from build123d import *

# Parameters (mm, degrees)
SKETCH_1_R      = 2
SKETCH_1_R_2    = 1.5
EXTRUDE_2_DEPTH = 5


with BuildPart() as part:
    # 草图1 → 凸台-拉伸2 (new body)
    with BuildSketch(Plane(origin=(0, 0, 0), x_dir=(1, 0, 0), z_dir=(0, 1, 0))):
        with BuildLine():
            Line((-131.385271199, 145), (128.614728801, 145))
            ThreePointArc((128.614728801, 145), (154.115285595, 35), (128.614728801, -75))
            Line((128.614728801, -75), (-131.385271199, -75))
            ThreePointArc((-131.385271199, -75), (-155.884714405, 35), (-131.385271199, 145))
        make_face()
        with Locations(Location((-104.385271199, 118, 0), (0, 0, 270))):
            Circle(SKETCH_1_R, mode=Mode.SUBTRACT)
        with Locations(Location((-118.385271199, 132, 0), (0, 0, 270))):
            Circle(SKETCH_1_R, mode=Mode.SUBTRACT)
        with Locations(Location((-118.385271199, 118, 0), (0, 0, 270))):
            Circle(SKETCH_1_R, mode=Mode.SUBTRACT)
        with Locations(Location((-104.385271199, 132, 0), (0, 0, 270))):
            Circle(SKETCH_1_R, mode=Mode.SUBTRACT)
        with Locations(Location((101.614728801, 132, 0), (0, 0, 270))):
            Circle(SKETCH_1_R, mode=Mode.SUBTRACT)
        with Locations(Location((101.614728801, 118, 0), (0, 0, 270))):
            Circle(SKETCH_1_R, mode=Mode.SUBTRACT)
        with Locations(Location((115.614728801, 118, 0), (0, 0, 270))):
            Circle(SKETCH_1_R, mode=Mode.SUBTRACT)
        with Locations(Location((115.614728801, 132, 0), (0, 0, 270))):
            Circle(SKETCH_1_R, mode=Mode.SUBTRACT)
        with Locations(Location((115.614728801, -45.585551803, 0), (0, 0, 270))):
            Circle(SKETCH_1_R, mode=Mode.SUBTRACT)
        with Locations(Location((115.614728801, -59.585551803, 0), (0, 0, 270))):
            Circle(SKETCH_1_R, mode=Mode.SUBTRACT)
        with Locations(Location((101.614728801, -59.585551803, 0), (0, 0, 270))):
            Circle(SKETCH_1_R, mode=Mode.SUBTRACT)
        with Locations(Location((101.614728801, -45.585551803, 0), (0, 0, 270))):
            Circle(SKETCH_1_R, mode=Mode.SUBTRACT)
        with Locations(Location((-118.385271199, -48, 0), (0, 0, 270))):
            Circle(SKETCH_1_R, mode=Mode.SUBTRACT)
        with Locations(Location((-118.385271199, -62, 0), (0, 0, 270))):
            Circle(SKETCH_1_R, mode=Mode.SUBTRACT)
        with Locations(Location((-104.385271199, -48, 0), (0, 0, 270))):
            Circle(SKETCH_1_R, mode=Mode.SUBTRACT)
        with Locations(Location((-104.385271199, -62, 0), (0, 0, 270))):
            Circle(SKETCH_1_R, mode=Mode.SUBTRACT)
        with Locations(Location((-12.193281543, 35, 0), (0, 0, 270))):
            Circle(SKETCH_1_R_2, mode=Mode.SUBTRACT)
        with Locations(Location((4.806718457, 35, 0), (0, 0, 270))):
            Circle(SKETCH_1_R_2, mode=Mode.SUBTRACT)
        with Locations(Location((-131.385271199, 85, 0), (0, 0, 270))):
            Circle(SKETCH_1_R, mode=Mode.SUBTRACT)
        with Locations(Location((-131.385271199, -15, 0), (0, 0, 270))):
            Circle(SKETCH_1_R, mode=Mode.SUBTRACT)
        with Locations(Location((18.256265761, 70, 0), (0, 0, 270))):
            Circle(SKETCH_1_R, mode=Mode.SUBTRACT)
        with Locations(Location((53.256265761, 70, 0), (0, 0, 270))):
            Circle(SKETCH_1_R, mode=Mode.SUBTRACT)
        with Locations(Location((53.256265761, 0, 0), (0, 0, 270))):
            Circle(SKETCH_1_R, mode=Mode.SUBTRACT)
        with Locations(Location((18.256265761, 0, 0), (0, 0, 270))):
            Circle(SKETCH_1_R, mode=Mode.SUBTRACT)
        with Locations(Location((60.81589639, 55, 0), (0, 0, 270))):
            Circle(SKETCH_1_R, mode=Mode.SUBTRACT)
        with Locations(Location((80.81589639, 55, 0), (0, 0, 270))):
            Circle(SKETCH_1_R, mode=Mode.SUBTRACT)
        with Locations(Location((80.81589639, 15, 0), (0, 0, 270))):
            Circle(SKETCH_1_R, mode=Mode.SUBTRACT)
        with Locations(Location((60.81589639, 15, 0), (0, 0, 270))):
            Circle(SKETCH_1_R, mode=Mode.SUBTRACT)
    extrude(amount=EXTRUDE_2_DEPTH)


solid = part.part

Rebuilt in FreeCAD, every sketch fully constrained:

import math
import FreeCAD as App
import Part
import Sketcher
from FreeCAD import Vector
Q = App.Units.Quantity

doc = App.newDocument("Part")
body = doc.addObject("PartDesign::Body", "Body")

# Sketch on XZ plane
sketch1 = doc.addObject("Sketcher::SketchObject", "Sketch")
body.addObject(sketch1)
sketch1.AttachmentSupport = (doc.XZ_Plane, [""])
sketch1.MapMode = "FlatFace"
sketch1.addGeometry(Part.LineSegment(Vector(128.6, -145, 0), Vector(-131.4, -145, 0)), False)
sketch1.addGeometry(Part.ArcOfCircle(Part.Circle(Vector(103.3, -35, 0), Vector(0, 0, 1), 259.2), math.radians(155), math.radians(205)), False)
sketch1.addGeometry(Part.LineSegment(Vector(-131.4, 75, 0), Vector(128.6, 75, 0)), False)
sketch1.addGeometry(Part.ArcOfCircle(Part.Circle(Vector(-95.9, -35, 0), Vector(0, 0, 1), 250), math.radians(-26), math.radians(26)), False)
sketch1.addGeometry(Part.Circle(Vector(115.6, 59.6, 0), Vector(0, 0, 1), 2), False)
sketch1.addGeometry(Part.Circle(Vector(101.6, 59.6, 0), Vector(0, 0, 1), 2), False)
sketch1.addGeometry(Part.Circle(Vector(115.6, 45.6, 0), Vector(0, 0, 1), 2), False)
sketch1.addGeometry(Part.Circle(Vector(101.6, 45.6, 0), Vector(0, 0, 1), 2), False)
sketch1.addGeometry(Part.Circle(Vector(80.8, -15, 0), Vector(0, 0, 1), 2), False)
sketch1.addGeometry(Part.Circle(Vector(60.8, -15, 0), Vector(0, 0, 1), 2), False)
sketch1.addGeometry(Part.Circle(Vector(53.3, 0, 0), Vector(0, 0, 1), 2), False)
sketch1.addGeometry(Part.Circle(Vector(18.3, 0, 0), Vector(0, 0, 1), 2), False)
sketch1.addGeometry(Part.Circle(Vector(-104.4, 62, 0), Vector(0, 0, 1), 2), False)
sketch1.addGeometry(Part.Circle(Vector(-118.4, 62, 0), Vector(0, 0, 1), 2), False)
sketch1.addGeometry(Part.Circle(Vector(-104.4, 48, 0), Vector(0, 0, 1), 2), False)
sketch1.addGeometry(Part.Circle(Vector(-118.4, 48, 0), Vector(0, 0, 1), 2), False)
sketch1.addGeometry(Part.Circle(Vector(-131.4, 15, 0), Vector(0, 0, 1), 2), False)
sketch1.addGeometry(Part.Circle(Vector(80.8, -55, 0), Vector(0, 0, 1), 2), False)
sketch1.addGeometry(Part.Circle(Vector(60.8, -55, 0), Vector(0, 0, 1), 2), False)
sketch1.addGeometry(Part.Circle(Vector(4.8, -35, 0), Vector(0, 0, 1), 1.5), False)
sketch1.addGeometry(Part.Circle(Vector(53.3, -70, 0), Vector(0, 0, 1), 2), False)
sketch1.addGeometry(Part.Circle(Vector(18.3, -70, 0), Vector(0, 0, 1), 2), False)
sketch1.addGeometry(Part.Circle(Vector(115.6, -118, 0), Vector(0, 0, 1), 2), False)
sketch1.addGeometry(Part.Circle(Vector(101.6, -118, 0), Vector(0, 0, 1), 2), False)
sketch1.addGeometry(Part.Circle(Vector(115.6, -132, 0), Vector(0, 0, 1), 2), False)
sketch1.addGeometry(Part.Circle(Vector(101.6, -132, 0), Vector(0, 0, 1), 2), False)
sketch1.addGeometry(Part.Circle(Vector(-12.2, -35, 0), Vector(0, 0, 1), 1.5), False)
sketch1.addGeometry(Part.Circle(Vector(-131.4, -85, 0), Vector(0, 0, 1), 2), False)
sketch1.addGeometry(Part.Circle(Vector(-104.4, -118, 0), Vector(0, 0, 1), 2), False)
sketch1.addGeometry(Part.Circle(Vector(-118.4, -118, 0), Vector(0, 0, 1), 2), False)
sketch1.addGeometry(Part.Circle(Vector(-104.4, -132, 0), Vector(0, 0, 1), 2), False)
sketch1.addGeometry(Part.Circle(Vector(-118.4, -132, 0), Vector(0, 0, 1), 2), False)
sketch1.addConstraint(Sketcher.Constraint("Coincident", 0, 2, 1, 2))
sketch1.addConstraint(Sketcher.Constraint("Coincident", 1, 1, 2, 1))
sketch1.addConstraint(Sketcher.Constraint("Coincident", 2, 2, 3, 2))
sketch1.addConstraint(Sketcher.Constraint("Coincident", 3, 1, 0, 1))
sketch1.addConstraint(Sketcher.Constraint("Horizontal", 0))
sketch1.addConstraint(Sketcher.Constraint("Horizontal", 2))
sketch1.addConstraint(Sketcher.Constraint("Equal", 4, 5))
sketch1.addConstraint(Sketcher.Constraint("Equal", 5, 6))
sketch1.addConstraint(Sketcher.Constraint("Equal", 6, 7))
sketch1.addConstraint(Sketcher.Constraint("Equal", 7, 8))
sketch1.addConstraint(Sketcher.Constraint("Equal", 8, 9))
sketch1.addConstraint(Sketcher.Constraint("Equal", 9, 10))
sketch1.addConstraint(Sketcher.Constraint("Equal", 10, 11))
sketch1.addConstraint(Sketcher.Constraint("Equal", 11, 12))
sketch1.addConstraint(Sketcher.Constraint("Equal", 12, 13))
sketch1.addConstraint(Sketcher.Constraint("Equal", 13, 14))
sketch1.addConstraint(Sketcher.Constraint("Equal", 14, 15))
sketch1.addConstraint(Sketcher.Constraint("Equal", 15, 16))
sketch1.addConstraint(Sketcher.Constraint("Equal", 16, 17))
sketch1.addConstraint(Sketcher.Constraint("Equal", 17, 18))
sketch1.addConstraint(Sketcher.Constraint("Equal", 18, 20))
sketch1.addConstraint(Sketcher.Constraint("Equal", 20, 21))
sketch1.addConstraint(Sketcher.Constraint("Equal", 21, 22))
sketch1.addConstraint(Sketcher.Constraint("Equal", 22, 23))
sketch1.addConstraint(Sketcher.Constraint("Equal", 23, 24))
sketch1.addConstraint(Sketcher.Constraint("Equal", 24, 25))
sketch1.addConstraint(Sketcher.Constraint("Equal", 19, 26))
sketch1.addConstraint(Sketcher.Constraint("Equal", 25, 27))
sketch1.addConstraint(Sketcher.Constraint("Equal", 27, 28))
sketch1.addConstraint(Sketcher.Constraint("Equal", 28, 29))
sketch1.addConstraint(Sketcher.Constraint("Equal", 29, 30))
sketch1.addConstraint(Sketcher.Constraint("Equal", 30, 31))
sketch1.addConstraint(Sketcher.Constraint("PointOnObject", 10, 3, -1))
sketch1.addConstraint(Sketcher.Constraint("PointOnObject", 11, 3, -1))
sketch1.addConstraint(Sketcher.Constraint("Horizontal", 1, 3, 3, 3))
sketch1.addConstraint(Sketcher.Constraint("Horizontal", 4, 3, 5, 3))
sketch1.addConstraint(Sketcher.Constraint("Horizontal", 6, 3, 7, 3))
sketch1.addConstraint(Sketcher.Constraint("Horizontal", 8, 3, 9, 3))
sketch1.addConstraint(Sketcher.Constraint("Horizontal", 12, 3, 13, 3))
sketch1.addConstraint(Sketcher.Constraint("Horizontal", 14, 3, 15, 3))
sketch1.addConstraint(Sketcher.Constraint("Horizontal", 17, 3, 18, 3))
sketch1.addConstraint(Sketcher.Constraint("Horizontal", 3, 3, 19, 3))
sketch1.addConstraint(Sketcher.Constraint("Horizontal", 20, 3, 21, 3))
sketch1.addConstraint(Sketcher.Constraint("Horizontal", 22, 3, 23, 3))
sketch1.addConstraint(Sketcher.Constraint("Horizontal", 24, 3, 25, 3))
sketch1.addConstraint(Sketcher.Constraint("Horizontal", 19, 3, 26, 3))
sketch1.addConstraint(Sketcher.Constraint("Horizontal", 23, 3, 28, 3))
sketch1.addConstraint(Sketcher.Constraint("Horizontal", 28, 3, 29, 3))
sketch1.addConstraint(Sketcher.Constraint("Horizontal", 25, 3, 30, 3))
sketch1.addConstraint(Sketcher.Constraint("Horizontal", 30, 3, 31, 3))
sketch1.addConstraint(Sketcher.Constraint("Vertical", 4, 3, 6, 3))
sketch1.addConstraint(Sketcher.Constraint("Vertical", 5, 3, 7, 3))
sketch1.addConstraint(Sketcher.Constraint("Vertical", 12, 3, 14, 3))
sketch1.addConstraint(Sketcher.Constraint("Vertical", 13, 3, 15, 3))
sketch1.addConstraint(Sketcher.Constraint("Vertical", 8, 3, 17, 3))
sketch1.addConstraint(Sketcher.Constraint("Vertical", 9, 3, 18, 3))
sketch1.addConstraint(Sketcher.Constraint("Vertical", 10, 3, 20, 3))
sketch1.addConstraint(Sketcher.Constraint("Vertical", 11, 3, 21, 3))
sketch1.addConstraint(Sketcher.Constraint("Vertical", 6, 3, 22, 3))
sketch1.addConstraint(Sketcher.Constraint("Vertical", 7, 3, 23, 3))
sketch1.addConstraint(Sketcher.Constraint("Vertical", 22, 3, 24, 3))
sketch1.addConstraint(Sketcher.Constraint("Vertical", 23, 3, 25, 3))
sketch1.addConstraint(Sketcher.Constraint("Vertical", 16, 3, 27, 3))
sketch1.addConstraint(Sketcher.Constraint("Vertical", 14, 3, 28, 3))
sketch1.addConstraint(Sketcher.Constraint("Vertical", 15, 3, 29, 3))
sketch1.addConstraint(Sketcher.Constraint("Vertical", 28, 3, 30, 3))
sketch1.addConstraint(Sketcher.Constraint("Vertical", 29, 3, 31, 3))
sketch1.addConstraint(Sketcher.Constraint("Vertical", 27, 3, 0, 2))
sketch1.addConstraint(Sketcher.Constraint("Vertical", 0, 2, 1, 1))
sketch1.addConstraint(Sketcher.Constraint("Diameter", 4, Q("4 mm")))
sketch1.addConstraint(Sketcher.Constraint("Diameter", 19, Q("3 mm")))
sketch1.addConstraint(Sketcher.Constraint("Radius", 3, Q("250 mm")))
sketch1.addConstraint(Sketcher.Constraint("DistanceX", 0, 2, 0, 1, Q("260 mm")))
sketch1.addConstraint(Sketcher.Constraint("DistanceY", 1, 3, -1, 1, Q("35 mm")))
sketch1.addConstraint(Sketcher.Constraint("DistanceY", 8, 3, -1, 1, Q("15 mm")))
sketch1.addConstraint(Sketcher.Constraint("DistanceY", -1, 1, 12, 3, Q("62 mm")))
sketch1.addConstraint(Sketcher.Constraint("DistanceY", -1, 1, 14, 3, Q("48 mm")))
sketch1.addConstraint(Sketcher.Constraint("DistanceY", -1, 1, 16, 3, Q("15 mm")))
sketch1.addConstraint(Sketcher.Constraint("DistanceY", 17, 3, -1, 1, Q("55 mm")))
sketch1.addConstraint(Sketcher.Constraint("DistanceY", 20, 3, -1, 1, Q("70 mm")))
sketch1.addConstraint(Sketcher.Constraint("DistanceY", 22, 3, -1, 1, Q("118 mm")))
sketch1.addConstraint(Sketcher.Constraint("DistanceY", 24, 3, -1, 1, Q("132 mm")))
sketch1.addConstraint(Sketcher.Constraint("DistanceY", 27, 3, -1, 1, Q("85 mm")))
sketch1.addConstraint(Sketcher.Constraint("DistanceY", 0, 2, -1, 1, Q("145 mm")))
sketch1.addConstraint(Sketcher.Constraint("DistanceX", 5, 3, 4, 3, Q("14 mm")))
sketch1.addConstraint(Sketcher.Constraint("DistanceY", 6, 3, 4, 3, Q("14 mm")))
sketch1.addConstraint(Sketcher.Constraint("DistanceX", 9, 3, 8, 3, Q("20 mm")))
sketch1.addConstraint(Sketcher.Constraint("DistanceX", 11, 3, 10, 3, Q("35 mm")))
sketch1.addConstraint(Sketcher.Constraint("DistanceX", 13, 3, 12, 3, Q("14 mm")))
sketch1.addConstraint(Sketcher.Constraint("DistanceX", 16, 3, 15, 3, Q("13 mm")))
sketch1.addConstraint(Sketcher.Constraint("DistanceX", 26, 3, 19, 3, Q("17 mm")))
sketch1.addConstraint(Sketcher.Constraint("DistanceX", 4, 3, 2, 2, Q("13 mm")))
sketch1.addConstraint(Sketcher.Constraint("Radius", 1, Q("259.194109 mm")))
sketch1.addConstraint(Sketcher.Constraint("DistanceX", 8, 3, 1, 3, Q("22.493498 mm")))
sketch1.addConstraint(Sketcher.Constraint("DistanceX", -1, 1, 4, 3, Q("115.614729 mm")))
sketch1.addConstraint(Sketcher.Constraint("DistanceY", -1, 1, 4, 3, Q("59.585552 mm")))
sketch1.addConstraint(Sketcher.Constraint("DistanceX", -1, 1, 19, 3, Q("4.806718 mm")))
sketch1.addConstraint(Sketcher.Constraint("DistanceX", 10, 3, 9, 3, Q("7.559631 mm")))
pad1 = doc.addObject("PartDesign::Pad", "Pad")
body.addObject(pad1)
pad1.Profile = sketch1
pad1.Length = 5
pad1.Reversed = True

doc.recompute()
